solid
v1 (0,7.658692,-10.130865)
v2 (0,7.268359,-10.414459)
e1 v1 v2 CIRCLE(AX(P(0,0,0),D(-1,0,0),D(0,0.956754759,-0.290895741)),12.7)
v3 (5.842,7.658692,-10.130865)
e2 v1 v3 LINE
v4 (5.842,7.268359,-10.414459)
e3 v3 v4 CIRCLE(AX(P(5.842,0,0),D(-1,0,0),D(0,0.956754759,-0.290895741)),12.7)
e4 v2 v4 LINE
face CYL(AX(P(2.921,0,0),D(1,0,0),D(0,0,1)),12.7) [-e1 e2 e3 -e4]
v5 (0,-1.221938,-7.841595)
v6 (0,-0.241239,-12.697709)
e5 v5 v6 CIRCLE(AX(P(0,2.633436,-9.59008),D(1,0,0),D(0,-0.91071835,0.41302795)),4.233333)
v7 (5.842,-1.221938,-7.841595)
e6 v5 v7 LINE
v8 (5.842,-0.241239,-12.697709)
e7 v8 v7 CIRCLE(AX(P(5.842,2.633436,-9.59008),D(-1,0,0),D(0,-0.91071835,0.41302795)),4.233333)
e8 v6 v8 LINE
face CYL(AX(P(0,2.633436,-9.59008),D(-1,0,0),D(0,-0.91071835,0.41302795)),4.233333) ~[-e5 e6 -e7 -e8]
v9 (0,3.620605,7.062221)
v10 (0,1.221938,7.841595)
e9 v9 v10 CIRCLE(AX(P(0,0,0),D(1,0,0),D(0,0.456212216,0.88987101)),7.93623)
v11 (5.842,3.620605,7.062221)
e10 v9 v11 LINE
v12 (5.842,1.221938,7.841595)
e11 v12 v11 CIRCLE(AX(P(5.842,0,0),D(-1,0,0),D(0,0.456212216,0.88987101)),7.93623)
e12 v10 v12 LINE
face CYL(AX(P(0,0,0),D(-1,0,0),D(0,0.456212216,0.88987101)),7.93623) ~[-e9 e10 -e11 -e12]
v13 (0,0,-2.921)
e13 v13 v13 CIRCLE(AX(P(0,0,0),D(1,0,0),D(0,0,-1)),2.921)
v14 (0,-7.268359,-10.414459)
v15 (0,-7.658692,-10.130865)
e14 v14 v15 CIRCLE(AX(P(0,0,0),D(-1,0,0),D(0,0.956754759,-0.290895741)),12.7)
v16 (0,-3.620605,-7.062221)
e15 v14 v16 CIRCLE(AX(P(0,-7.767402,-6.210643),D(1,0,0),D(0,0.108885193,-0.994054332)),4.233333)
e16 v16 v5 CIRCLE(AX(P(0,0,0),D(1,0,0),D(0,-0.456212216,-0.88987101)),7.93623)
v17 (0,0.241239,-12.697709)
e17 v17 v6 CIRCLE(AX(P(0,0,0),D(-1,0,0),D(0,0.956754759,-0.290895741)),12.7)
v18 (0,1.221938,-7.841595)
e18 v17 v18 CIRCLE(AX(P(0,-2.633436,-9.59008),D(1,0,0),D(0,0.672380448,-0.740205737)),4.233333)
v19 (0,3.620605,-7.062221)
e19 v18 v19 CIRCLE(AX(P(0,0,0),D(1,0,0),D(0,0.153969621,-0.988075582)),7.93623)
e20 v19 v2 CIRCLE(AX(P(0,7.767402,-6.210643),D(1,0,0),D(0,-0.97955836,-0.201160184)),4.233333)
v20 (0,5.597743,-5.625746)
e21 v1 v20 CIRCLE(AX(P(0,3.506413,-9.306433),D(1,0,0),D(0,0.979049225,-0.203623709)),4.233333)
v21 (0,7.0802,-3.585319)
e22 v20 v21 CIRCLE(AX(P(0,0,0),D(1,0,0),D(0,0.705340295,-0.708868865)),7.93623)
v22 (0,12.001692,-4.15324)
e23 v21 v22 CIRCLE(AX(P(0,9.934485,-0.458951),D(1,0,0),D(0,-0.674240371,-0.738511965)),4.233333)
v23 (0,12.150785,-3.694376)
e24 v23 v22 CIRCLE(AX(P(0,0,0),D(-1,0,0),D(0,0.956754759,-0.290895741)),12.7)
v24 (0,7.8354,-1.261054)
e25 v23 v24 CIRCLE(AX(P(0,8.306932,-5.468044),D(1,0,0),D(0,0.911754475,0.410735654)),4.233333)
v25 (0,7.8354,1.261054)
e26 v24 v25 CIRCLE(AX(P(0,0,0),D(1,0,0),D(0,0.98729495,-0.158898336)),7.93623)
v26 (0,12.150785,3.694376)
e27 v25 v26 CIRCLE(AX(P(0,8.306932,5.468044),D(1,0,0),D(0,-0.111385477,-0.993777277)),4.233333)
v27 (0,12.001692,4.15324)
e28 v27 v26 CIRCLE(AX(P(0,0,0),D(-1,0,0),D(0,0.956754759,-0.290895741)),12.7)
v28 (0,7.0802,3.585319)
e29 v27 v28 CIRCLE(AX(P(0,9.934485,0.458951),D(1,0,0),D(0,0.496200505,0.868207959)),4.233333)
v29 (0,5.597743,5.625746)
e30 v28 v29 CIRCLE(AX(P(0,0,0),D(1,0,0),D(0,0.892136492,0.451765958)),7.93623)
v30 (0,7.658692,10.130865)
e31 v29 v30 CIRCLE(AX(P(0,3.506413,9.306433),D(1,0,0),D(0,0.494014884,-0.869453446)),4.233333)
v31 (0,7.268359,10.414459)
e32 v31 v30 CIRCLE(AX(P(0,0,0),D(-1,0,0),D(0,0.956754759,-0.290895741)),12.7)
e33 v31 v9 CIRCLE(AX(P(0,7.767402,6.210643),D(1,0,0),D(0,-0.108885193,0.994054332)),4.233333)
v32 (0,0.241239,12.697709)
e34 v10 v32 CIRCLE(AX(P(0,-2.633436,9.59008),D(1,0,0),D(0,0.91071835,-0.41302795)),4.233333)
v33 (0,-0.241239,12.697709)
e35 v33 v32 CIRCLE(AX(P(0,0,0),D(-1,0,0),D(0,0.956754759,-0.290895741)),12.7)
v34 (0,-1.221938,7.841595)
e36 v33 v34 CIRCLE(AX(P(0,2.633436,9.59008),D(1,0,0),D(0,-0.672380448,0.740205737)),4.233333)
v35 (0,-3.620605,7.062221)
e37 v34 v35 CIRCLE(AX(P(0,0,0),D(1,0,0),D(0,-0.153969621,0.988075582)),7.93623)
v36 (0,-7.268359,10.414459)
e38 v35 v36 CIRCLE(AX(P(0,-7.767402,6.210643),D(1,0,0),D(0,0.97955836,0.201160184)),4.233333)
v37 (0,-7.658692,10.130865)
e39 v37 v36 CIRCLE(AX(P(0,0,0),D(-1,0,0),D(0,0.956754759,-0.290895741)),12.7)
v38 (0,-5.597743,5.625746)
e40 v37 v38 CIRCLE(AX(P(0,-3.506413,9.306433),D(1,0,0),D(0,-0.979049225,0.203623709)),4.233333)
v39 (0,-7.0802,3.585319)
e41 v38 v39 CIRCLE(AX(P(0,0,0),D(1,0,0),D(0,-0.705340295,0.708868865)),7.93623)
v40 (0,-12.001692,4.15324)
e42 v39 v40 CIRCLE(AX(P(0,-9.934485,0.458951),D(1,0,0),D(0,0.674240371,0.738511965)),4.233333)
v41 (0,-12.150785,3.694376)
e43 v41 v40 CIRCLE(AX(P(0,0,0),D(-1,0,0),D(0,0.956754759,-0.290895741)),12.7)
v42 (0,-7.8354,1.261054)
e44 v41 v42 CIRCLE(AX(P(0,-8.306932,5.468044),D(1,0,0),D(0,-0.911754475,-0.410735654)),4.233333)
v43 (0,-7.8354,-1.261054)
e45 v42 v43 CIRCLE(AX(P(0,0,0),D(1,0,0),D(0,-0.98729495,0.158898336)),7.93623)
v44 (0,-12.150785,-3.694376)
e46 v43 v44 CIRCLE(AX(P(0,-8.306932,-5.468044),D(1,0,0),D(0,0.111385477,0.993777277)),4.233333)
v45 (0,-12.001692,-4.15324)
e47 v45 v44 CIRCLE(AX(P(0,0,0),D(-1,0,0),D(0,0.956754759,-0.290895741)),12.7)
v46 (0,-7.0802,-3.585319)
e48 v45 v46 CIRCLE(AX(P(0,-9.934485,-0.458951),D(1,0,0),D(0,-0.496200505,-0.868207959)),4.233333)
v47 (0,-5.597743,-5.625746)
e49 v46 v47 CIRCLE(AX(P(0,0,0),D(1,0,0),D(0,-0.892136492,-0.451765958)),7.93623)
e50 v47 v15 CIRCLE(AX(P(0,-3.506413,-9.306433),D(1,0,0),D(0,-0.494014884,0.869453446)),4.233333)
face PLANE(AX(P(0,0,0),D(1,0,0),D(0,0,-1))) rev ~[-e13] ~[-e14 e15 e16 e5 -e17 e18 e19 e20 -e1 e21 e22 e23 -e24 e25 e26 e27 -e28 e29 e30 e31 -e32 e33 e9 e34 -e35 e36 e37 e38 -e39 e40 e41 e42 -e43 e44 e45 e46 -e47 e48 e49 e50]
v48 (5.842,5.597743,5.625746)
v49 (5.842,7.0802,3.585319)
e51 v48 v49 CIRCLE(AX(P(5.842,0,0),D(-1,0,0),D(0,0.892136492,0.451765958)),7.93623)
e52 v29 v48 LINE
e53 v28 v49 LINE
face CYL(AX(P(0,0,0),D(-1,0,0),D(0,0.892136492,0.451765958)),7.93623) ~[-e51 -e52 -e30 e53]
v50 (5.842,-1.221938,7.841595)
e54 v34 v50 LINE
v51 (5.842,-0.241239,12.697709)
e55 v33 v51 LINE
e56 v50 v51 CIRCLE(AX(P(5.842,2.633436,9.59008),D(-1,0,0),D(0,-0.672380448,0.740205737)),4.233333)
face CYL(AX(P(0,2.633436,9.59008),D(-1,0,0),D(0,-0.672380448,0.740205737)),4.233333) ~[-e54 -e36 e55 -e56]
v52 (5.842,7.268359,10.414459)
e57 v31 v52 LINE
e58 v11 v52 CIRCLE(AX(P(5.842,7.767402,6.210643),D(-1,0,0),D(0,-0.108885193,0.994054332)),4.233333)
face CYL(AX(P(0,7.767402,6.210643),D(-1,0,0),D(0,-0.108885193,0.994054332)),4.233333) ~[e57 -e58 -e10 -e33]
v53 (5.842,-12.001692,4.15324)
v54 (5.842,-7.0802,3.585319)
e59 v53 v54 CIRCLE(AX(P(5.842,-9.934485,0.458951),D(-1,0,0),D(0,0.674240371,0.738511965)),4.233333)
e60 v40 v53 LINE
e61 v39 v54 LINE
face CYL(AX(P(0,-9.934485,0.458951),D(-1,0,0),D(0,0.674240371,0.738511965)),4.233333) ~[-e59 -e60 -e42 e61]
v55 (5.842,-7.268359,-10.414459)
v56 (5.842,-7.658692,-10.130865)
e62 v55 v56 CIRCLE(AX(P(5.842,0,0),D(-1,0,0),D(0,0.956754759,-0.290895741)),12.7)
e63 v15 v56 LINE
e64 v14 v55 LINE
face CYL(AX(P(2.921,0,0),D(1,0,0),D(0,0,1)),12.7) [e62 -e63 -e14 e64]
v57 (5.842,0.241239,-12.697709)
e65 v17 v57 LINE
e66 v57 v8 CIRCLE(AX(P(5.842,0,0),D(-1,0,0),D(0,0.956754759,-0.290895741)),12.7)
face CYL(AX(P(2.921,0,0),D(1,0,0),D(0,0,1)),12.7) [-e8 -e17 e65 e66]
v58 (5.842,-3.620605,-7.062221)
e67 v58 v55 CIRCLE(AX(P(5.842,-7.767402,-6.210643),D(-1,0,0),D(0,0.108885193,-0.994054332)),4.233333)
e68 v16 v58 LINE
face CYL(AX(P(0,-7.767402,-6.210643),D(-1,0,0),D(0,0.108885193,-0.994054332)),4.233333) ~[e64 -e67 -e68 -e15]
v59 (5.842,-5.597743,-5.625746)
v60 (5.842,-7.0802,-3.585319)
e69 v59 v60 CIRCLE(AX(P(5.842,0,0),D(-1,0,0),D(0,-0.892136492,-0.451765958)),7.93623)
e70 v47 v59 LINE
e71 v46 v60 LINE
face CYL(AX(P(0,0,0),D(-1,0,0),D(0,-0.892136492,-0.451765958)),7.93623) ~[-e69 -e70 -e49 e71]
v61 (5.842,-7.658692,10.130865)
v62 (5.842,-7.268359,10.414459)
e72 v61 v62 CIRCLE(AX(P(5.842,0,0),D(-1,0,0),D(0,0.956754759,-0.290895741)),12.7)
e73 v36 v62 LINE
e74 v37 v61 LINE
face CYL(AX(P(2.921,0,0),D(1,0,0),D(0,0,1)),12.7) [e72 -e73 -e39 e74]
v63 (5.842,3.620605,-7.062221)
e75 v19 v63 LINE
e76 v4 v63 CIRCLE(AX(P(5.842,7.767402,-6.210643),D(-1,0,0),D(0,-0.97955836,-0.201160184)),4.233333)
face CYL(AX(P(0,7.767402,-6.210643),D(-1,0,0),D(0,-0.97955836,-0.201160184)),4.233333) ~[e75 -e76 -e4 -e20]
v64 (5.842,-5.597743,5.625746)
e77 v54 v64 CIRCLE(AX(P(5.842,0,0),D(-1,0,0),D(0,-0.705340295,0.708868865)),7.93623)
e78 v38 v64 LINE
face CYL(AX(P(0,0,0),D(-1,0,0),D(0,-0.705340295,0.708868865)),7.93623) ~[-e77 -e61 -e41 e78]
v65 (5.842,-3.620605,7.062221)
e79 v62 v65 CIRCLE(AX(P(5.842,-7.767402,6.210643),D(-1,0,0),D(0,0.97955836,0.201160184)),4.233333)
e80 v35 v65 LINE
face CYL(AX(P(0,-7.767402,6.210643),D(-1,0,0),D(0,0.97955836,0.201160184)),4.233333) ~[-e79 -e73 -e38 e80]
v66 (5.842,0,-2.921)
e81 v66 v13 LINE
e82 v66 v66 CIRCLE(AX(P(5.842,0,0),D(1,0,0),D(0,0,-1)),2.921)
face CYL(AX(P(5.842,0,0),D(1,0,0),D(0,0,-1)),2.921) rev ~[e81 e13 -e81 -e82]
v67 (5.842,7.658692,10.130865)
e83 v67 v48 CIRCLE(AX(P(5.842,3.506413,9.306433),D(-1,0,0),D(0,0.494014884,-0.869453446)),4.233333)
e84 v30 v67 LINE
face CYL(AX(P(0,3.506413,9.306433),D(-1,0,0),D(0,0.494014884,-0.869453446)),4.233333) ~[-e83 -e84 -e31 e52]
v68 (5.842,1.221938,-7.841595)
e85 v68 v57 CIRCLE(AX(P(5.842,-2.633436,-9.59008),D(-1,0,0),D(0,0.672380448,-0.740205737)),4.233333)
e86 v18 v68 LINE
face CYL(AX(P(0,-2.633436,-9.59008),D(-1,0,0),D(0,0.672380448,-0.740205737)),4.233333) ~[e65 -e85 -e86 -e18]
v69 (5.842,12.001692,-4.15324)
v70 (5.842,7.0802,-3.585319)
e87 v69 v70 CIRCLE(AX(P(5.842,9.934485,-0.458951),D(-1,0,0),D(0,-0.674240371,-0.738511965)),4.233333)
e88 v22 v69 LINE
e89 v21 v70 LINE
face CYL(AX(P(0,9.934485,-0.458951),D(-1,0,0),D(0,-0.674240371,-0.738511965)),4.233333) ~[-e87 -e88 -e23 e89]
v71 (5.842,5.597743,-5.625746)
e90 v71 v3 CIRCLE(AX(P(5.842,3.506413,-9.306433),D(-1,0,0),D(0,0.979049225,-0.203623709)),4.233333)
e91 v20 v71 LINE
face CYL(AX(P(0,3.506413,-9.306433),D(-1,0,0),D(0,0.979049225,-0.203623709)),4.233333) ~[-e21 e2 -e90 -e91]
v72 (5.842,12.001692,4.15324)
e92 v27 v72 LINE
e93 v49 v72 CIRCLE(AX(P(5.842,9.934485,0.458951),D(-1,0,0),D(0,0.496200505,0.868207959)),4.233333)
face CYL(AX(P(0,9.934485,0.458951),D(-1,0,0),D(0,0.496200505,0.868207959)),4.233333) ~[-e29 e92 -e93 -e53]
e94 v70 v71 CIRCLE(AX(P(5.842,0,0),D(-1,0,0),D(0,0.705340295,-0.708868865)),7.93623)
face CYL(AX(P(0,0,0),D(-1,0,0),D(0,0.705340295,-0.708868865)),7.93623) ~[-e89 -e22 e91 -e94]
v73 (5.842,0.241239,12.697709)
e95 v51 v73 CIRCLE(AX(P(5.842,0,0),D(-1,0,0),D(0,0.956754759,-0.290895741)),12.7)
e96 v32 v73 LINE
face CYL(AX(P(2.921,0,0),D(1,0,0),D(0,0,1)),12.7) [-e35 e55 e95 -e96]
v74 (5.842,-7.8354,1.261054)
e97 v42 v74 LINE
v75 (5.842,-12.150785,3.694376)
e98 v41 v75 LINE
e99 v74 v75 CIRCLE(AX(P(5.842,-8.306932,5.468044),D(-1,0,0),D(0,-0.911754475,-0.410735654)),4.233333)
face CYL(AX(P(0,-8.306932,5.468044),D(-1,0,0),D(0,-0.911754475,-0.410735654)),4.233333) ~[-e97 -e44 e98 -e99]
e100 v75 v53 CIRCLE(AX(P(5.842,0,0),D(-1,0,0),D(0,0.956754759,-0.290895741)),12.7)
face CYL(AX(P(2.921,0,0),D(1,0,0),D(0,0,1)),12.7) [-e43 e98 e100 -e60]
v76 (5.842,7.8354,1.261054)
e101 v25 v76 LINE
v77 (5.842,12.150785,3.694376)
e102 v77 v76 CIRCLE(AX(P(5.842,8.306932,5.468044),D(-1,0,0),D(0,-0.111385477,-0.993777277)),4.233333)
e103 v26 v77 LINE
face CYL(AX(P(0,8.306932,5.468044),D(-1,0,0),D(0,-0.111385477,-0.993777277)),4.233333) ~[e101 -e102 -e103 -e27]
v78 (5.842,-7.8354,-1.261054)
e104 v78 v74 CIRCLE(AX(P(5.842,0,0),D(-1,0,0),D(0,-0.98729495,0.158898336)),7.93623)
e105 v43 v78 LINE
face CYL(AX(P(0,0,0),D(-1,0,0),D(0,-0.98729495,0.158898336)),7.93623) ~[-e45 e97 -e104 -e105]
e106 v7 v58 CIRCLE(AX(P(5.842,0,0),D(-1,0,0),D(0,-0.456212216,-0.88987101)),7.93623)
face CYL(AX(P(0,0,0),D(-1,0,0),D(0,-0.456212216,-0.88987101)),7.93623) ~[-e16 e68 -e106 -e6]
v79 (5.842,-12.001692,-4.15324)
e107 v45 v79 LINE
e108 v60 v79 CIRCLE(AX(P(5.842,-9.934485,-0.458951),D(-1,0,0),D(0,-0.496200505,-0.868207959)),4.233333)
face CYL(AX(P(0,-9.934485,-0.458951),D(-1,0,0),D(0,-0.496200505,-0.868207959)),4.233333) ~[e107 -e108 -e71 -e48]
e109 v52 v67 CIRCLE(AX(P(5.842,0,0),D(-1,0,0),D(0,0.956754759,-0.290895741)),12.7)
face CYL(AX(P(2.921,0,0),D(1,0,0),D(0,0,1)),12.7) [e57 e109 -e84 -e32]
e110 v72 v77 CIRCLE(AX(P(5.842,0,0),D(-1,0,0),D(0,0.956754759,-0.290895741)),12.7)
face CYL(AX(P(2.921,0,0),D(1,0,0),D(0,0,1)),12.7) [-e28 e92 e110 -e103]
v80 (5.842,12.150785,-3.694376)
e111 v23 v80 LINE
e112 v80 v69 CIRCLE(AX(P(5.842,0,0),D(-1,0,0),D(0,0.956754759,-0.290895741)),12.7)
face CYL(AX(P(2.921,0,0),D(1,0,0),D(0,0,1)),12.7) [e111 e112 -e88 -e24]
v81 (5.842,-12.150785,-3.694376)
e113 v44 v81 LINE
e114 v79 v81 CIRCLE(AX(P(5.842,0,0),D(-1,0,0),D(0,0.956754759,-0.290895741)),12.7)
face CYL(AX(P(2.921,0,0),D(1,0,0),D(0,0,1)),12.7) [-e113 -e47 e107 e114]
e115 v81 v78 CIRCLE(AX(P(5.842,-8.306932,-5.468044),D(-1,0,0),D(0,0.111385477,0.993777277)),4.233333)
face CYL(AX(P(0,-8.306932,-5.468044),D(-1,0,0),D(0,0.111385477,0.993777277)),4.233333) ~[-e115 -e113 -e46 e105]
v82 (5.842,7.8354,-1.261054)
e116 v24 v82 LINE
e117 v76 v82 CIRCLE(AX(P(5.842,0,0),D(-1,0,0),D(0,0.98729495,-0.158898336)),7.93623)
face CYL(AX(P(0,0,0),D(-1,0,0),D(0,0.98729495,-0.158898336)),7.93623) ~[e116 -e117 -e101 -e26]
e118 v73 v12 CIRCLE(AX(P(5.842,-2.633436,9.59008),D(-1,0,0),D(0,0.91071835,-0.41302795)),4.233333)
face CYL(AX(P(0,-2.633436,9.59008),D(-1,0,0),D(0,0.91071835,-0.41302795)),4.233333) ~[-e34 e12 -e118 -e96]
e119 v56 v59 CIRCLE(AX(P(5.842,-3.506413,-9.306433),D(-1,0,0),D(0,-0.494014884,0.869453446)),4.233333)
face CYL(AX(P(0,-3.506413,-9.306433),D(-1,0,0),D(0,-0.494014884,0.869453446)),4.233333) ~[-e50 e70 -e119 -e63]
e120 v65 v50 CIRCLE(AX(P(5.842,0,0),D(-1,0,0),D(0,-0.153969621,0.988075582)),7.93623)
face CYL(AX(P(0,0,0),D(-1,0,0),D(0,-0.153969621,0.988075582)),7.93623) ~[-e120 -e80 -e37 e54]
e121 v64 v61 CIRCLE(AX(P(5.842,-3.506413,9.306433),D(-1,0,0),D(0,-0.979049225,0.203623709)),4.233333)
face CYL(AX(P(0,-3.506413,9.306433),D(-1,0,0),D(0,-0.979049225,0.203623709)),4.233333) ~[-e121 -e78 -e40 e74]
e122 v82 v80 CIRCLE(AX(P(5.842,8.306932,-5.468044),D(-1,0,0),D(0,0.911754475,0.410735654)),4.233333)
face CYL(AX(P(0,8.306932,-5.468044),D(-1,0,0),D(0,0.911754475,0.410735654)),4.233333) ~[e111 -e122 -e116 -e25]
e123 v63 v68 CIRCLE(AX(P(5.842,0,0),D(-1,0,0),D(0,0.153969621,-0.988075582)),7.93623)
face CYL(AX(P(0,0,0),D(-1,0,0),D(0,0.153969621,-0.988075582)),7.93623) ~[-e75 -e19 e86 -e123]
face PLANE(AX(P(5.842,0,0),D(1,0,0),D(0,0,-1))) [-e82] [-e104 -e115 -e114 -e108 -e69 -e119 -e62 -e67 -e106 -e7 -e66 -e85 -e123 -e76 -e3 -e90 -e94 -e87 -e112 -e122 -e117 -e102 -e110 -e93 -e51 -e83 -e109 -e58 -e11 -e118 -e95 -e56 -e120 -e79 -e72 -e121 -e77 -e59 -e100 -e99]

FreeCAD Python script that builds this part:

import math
import FreeCAD as App
import Part
import Sketcher
from FreeCAD import Vector
Q = App.Units.Quantity

doc = App.newDocument("Part")
body = doc.addObject("PartDesign::Body", "Body")

# Sketch on XZ plane
sketch1 = body.newObject("Sketcher::SketchObject", "Sketch")
sketch1.AttachmentSupport = (doc.getObject("XZ_Plane"), [""])
sketch1.MapMode = "FlatFace"
sketch1.addGeometry(Part.LineSegment(Vector(0, -12.7, 0), Vector(0, 0, 0)), False)
sketch1.addGeometry(Part.LineSegment(Vector(0, 0, 0), Vector(5.842, 0, 0)), False)
sketch1.addGeometry(Part.LineSegment(Vector(5.842, 0, 0), Vector(5.842, -12.7, 0)), False)
sketch1.addGeometry(Part.LineSegment(Vector(5.842, -12.7, 0), Vector(0, -12.7, 0)), False)
sketch1.addConstraint(Sketcher.Constraint("Coincident", 0, 2, 1, 1))
sketch1.addConstraint(Sketcher.Constraint("Coincident", 1, 2, 2, 1))
sketch1.addConstraint(Sketcher.Constraint("Coincident", 2, 2, 3, 1))
sketch1.addConstraint(Sketcher.Constraint("Coincident", 3, 2, 0, 1))
sketch1.addConstraint(Sketcher.Constraint("Vertical", 0))
sketch1.addConstraint(Sketcher.Constraint("Horizontal", 1))
sketch1.addConstraint(Sketcher.Constraint("Vertical", 2))
sketch1.addConstraint(Sketcher.Constraint("Horizontal", 3))
sketch1.addConstraint(Sketcher.Constraint("Coincident", 0, 2, -1, 1))
sketch1.addConstraint(Sketcher.Constraint("DistanceY", 0, 1, 0, 2, Q("0.5 in")))
sketch1.addConstraint(Sketcher.Constraint("DistanceX", 1, 1, 1, 2, Q("0.23 in")))
revolution = body.newObject("PartDesign::Revolution", "Revolution")
revolution.Profile = sketch1
revolution.ReferenceAxis = (sketch1, ["H_Axis"])
revolution.Angle = 360

# Sketch on YZ plane
sketch2 = body.newObject("Sketcher::SketchObject", "Sketch001")
sketch2.AttachmentSupport = (doc.getObject("YZ_Plane"), [""])
sketch2.MapMode = "FlatFace"
sketch2.addGeometry(Part.ArcOfCircle(Part.Circle(Vector(0, 0, 0), Vector(0, 0, 1), 7.93623), math.radians(-9.142957), math.radians(9.142957)), False)
sketch2.addGeometry(Part.ArcOfCircle(Part.Circle(Vector(8.306932, -5.468044, 0), Vector(0, 0, 1), 4.233333), math.radians(24.251056), math.radians(96.395188)), False)
sketch2.addGeometry(Part.ArcOfCircle(Part.Circle(Vector(0, 0, 0), Vector(0, 0, 1), 12.7254), math.radians(-17.041043), math.radians(17.041043)), False)
sketch2.addGeometry(Part.ArcOfCircle(Part.Circle(Vector(8.306932, 5.468044, 0), Vector(0, 0, 1), 4.233333), math.radians(-96.395188), math.radians(-24.251056)), False)
sketch2.addConstraint(Sketcher.Constraint("Coincident", 0, 1, 1, 2))
sketch2.addConstraint(Sketcher.Constraint("Coincident", 1, 1, 2, 1))
sketch2.addConstraint(Sketcher.Constraint("Coincident", 2, 2, 3, 2))
sketch2.addConstraint(Sketcher.Constraint("Coincident", 3, 1, 0, 2))
sketch2.addConstraint(Sketcher.Constraint("Coincident", 0, 3, -1, 1))
sketch2.addConstraint(Sketcher.Constraint("Coincident", 2, 3, -1, 1))
sketch2.addConstraint(Sketcher.Constraint("Equal", 1, 3))
sketch2.addConstraint(Sketcher.Constraint("Symmetric", 1, 3, 3, 3, -1))
sketch2.addConstraint(Sketcher.Constraint("Radius", 2, Q("0.501 in")))
sketch2.addConstraint(Sketcher.Constraint("Radius", 0, 7.93623))
sketch2.addConstraint(Sketcher.Constraint("Radius", 1, 4.233333))
sketch2.addConstraint(Sketcher.Constraint("DistanceX", -1, 1, 0, 1, 7.8354))
sketch2.addConstraint(Sketcher.Constraint("DistanceX", -1, 1, 1, 3, 8.306932))
pocket1 = body.newObject("PartDesign::Pocket", "Pocket")
pocket1.Profile = sketch2
pocket1.Type = "ThroughAll"
pocket1.Reversed = True
doc.recompute()

polarpattern = body.newObject("PartDesign::PolarPattern", "PolarPattern")
polarpattern.Originals = [pocket1]
polarpattern.Axis = (doc.getObject("X_Axis"), [""])
polarpattern.Angle = 360
polarpattern.Occurrences = 10
body.Tip = polarpattern

# Sketch on YZ plane
sketch3 = body.newObject("Sketcher::SketchObject", "Sketch002")
sketch3.AttachmentSupport = (doc.getObject("YZ_Plane"), [""])
sketch3.MapMode = "FlatFace"
sketch3.addGeometry(Part.Circle(Vector(0, 0, 0), Vector(0, 0, 1), 3.175), False)
sketch3.addConstraint(Sketcher.Constraint("Coincident", 0, 3, -1, 1))
sketch3.addConstraint(Sketcher.Constraint("Diameter", 0, Q("0.25 in")))
pocket2 = body.newObject("PartDesign::Pocket", "Pocket001")
pocket2.Profile = sketch3
pocket2.Length = 101.600102
pocket2.Midplane = True

# Sketch on YZ plane
sketch4 = body.newObject("Sketcher::SketchObject", "Sketch003")
sketch4.AttachmentSupport = (doc.getObject("YZ_Plane"), [""])
sketch4.MapMode = "FlatFace"
sketch4.AttachmentOffset = App.Placement(Vector(0, 0, 0.23 * 25.4), App.Rotation())
sketch4.addGeometry(Part.Circle(Vector(0, 0, 0), Vector(0, 0, 1), 3.175), False)
sketch4.addGeometry(Part.Circle(Vector(0, 0, 0), Vector(0, 0, 1), 2.921), False)
sketch4.addConstraint(Sketcher.Constraint("Coincident", 0, 3, -1, 1))
sketch4.addConstraint(Sketcher.Constraint("Coincident", 1, 3, -1, 1))
sketch4.addConstraint(Sketcher.Constraint("Diameter", 0, Q("0.25 in")))
sketch4.addConstraint(Sketcher.Constraint("Diameter", 1, Q("0.23 in")))
pad1 = body.newObject("PartDesign::Pad", "Pad")
pad1.Profile = sketch4
pad1.Length = Q("0.23 in")
pad1.Reversed = True

doc.recompute()
